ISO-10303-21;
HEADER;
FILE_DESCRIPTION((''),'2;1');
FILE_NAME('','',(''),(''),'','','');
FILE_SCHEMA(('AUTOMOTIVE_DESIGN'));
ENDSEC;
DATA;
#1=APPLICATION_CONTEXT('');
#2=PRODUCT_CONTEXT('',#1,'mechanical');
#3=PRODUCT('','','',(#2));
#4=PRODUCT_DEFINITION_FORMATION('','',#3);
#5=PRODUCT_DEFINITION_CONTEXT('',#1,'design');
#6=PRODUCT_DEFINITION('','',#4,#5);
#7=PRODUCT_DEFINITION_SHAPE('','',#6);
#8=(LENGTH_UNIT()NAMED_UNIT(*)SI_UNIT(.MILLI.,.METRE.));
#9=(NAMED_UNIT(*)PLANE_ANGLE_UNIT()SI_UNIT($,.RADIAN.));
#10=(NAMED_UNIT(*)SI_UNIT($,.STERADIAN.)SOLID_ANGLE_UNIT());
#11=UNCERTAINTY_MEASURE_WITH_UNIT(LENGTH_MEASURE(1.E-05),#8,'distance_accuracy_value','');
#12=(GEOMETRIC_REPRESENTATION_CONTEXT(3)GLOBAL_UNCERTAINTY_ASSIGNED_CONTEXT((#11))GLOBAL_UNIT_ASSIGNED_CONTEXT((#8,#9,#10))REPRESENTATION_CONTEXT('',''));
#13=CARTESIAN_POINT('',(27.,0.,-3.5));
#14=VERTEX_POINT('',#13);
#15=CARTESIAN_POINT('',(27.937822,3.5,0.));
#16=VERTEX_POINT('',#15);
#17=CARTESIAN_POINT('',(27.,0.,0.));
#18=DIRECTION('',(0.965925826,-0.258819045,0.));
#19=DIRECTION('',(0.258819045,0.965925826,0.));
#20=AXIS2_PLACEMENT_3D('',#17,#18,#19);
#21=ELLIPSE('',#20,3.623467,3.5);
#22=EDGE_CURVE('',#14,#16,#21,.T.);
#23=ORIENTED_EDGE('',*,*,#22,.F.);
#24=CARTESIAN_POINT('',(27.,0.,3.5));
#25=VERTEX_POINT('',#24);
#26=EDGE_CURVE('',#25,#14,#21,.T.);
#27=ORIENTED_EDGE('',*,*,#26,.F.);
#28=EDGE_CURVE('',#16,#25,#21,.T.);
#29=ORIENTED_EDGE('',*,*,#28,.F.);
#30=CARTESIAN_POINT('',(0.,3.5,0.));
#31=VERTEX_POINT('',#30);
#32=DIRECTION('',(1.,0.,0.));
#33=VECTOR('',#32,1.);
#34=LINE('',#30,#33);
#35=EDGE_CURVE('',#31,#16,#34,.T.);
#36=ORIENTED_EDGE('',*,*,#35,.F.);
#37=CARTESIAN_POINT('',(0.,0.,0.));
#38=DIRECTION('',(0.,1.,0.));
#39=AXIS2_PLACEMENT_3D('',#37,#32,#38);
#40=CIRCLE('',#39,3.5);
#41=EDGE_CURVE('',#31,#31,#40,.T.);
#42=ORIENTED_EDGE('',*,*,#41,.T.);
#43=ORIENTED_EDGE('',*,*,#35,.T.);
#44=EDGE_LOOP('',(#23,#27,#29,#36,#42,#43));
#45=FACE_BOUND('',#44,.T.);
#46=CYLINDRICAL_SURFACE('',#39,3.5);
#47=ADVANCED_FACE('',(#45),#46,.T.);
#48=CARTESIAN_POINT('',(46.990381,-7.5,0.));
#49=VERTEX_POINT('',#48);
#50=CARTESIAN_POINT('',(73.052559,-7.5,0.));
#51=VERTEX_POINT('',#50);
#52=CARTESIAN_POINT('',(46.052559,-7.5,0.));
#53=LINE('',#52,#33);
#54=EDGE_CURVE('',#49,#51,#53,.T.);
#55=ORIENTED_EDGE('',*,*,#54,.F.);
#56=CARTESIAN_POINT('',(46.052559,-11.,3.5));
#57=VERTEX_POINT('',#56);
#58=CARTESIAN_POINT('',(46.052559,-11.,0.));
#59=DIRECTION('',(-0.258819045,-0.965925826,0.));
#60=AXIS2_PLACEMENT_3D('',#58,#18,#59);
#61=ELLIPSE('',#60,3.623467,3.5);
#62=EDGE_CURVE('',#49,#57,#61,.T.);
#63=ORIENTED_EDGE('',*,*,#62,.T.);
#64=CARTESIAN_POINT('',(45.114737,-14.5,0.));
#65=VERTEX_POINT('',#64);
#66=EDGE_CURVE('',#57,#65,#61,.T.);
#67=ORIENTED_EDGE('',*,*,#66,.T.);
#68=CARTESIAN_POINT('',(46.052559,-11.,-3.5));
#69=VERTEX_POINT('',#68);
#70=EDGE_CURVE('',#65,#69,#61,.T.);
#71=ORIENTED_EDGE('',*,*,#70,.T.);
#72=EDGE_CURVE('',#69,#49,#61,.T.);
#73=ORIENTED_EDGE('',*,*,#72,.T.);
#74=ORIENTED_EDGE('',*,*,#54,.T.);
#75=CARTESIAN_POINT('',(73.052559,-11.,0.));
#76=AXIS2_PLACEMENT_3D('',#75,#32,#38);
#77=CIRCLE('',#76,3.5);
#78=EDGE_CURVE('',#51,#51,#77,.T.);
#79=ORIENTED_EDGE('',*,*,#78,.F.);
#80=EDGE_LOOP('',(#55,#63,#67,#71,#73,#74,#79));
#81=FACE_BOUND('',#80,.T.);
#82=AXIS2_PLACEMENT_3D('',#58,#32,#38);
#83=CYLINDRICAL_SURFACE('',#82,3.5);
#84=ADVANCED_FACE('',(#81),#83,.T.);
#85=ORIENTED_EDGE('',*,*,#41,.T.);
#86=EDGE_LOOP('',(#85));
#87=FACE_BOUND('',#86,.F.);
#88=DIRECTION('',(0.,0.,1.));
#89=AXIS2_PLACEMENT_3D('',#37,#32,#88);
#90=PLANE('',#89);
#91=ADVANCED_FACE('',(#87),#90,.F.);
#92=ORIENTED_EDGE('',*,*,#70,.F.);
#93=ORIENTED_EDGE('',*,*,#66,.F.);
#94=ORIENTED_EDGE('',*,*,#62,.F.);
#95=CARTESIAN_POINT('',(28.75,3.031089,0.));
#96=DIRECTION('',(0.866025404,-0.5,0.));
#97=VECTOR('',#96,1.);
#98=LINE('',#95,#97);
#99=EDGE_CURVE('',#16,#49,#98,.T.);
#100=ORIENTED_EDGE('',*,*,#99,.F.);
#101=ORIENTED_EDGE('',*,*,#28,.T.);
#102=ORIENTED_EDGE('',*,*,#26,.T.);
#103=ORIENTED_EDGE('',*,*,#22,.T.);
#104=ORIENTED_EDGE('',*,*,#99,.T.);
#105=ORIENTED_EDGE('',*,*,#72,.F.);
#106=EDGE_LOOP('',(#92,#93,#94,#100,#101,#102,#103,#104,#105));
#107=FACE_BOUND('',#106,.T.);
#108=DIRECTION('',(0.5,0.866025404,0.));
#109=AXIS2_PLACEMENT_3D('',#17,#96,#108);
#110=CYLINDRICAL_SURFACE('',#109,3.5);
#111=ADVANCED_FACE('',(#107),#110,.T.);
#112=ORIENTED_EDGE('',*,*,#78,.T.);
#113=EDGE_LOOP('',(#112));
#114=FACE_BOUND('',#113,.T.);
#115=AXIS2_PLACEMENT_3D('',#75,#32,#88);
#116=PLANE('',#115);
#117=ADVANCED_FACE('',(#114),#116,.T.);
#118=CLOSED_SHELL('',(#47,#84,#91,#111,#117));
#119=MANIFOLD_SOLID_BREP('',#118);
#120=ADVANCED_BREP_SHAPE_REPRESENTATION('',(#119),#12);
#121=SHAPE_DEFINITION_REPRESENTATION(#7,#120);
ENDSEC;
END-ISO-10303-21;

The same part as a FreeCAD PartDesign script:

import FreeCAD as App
import Part
import Sketcher

V = App.Vector
Q = App.Units.Quantity

doc = App.newDocument("Part")
body = doc.addObject("PartDesign::Body", "Body")

sketch1 = doc.addObject("Sketcher::SketchObject", "Sketch")
body.addObject(sketch1)
sketch1.AttachmentSupport = (doc.YZ_Plane, [""])
sketch1.MapMode = "FlatFace"
sketch1.addGeometry(Part.Circle(V(0, 0, 0), V(0, 0, 1), 3.5), False)
sketch1.addConstraint([
    Sketcher.Constraint("Coincident", 0, 3, -1, 1),
    Sketcher.Constraint("Diameter", 0, 7.0),
])

sketch2 = doc.addObject("Sketcher::SketchObject", "Sketch001")
body.addObject(sketch2)
sketch2.AttachmentSupport = (doc.XY_Plane, [""])
sketch2.MapMode = "FlatFace"
sketch2.addGeometry([
    Part.LineSegment(V(0, 0, 0), V(27, 0, 0)),
    Part.LineSegment(V(27, 0, 0), V(46, -11, 0)),
    Part.LineSegment(V(46, -11, 0), V(73, -11, 0)),
], False)
sketch2.addConstraint([
    Sketcher.Constraint("Coincident", 0, 2, 1, 1),
    Sketcher.Constraint("Coincident", 1, 2, 2, 1),
    Sketcher.Constraint("Horizontal", 0),
    Sketcher.Constraint("Horizontal", 2),
    Sketcher.Constraint("Coincident", 0, 1, -1, 1),
    Sketcher.Constraint("Equal", 0, 2),
    Sketcher.Constraint("DistanceX", 0, 1, 0, 2, 27.0),
    Sketcher.Constraint("Angle", 1, Q("-30 deg")),
    Sketcher.Constraint("Distance", 1, 22.0),
])
doc.recompute()

additivepipe = doc.addObject("PartDesign::AdditivePipe", "AdditivePipe")
body.addObject(additivepipe)
additivepipe.Profile = sketch1
additivepipe.Spine = (sketch2, ["Edge1", "Edge2", "Edge3"])
additivepipe.Transition = "Right corner"

doc.recompute()
